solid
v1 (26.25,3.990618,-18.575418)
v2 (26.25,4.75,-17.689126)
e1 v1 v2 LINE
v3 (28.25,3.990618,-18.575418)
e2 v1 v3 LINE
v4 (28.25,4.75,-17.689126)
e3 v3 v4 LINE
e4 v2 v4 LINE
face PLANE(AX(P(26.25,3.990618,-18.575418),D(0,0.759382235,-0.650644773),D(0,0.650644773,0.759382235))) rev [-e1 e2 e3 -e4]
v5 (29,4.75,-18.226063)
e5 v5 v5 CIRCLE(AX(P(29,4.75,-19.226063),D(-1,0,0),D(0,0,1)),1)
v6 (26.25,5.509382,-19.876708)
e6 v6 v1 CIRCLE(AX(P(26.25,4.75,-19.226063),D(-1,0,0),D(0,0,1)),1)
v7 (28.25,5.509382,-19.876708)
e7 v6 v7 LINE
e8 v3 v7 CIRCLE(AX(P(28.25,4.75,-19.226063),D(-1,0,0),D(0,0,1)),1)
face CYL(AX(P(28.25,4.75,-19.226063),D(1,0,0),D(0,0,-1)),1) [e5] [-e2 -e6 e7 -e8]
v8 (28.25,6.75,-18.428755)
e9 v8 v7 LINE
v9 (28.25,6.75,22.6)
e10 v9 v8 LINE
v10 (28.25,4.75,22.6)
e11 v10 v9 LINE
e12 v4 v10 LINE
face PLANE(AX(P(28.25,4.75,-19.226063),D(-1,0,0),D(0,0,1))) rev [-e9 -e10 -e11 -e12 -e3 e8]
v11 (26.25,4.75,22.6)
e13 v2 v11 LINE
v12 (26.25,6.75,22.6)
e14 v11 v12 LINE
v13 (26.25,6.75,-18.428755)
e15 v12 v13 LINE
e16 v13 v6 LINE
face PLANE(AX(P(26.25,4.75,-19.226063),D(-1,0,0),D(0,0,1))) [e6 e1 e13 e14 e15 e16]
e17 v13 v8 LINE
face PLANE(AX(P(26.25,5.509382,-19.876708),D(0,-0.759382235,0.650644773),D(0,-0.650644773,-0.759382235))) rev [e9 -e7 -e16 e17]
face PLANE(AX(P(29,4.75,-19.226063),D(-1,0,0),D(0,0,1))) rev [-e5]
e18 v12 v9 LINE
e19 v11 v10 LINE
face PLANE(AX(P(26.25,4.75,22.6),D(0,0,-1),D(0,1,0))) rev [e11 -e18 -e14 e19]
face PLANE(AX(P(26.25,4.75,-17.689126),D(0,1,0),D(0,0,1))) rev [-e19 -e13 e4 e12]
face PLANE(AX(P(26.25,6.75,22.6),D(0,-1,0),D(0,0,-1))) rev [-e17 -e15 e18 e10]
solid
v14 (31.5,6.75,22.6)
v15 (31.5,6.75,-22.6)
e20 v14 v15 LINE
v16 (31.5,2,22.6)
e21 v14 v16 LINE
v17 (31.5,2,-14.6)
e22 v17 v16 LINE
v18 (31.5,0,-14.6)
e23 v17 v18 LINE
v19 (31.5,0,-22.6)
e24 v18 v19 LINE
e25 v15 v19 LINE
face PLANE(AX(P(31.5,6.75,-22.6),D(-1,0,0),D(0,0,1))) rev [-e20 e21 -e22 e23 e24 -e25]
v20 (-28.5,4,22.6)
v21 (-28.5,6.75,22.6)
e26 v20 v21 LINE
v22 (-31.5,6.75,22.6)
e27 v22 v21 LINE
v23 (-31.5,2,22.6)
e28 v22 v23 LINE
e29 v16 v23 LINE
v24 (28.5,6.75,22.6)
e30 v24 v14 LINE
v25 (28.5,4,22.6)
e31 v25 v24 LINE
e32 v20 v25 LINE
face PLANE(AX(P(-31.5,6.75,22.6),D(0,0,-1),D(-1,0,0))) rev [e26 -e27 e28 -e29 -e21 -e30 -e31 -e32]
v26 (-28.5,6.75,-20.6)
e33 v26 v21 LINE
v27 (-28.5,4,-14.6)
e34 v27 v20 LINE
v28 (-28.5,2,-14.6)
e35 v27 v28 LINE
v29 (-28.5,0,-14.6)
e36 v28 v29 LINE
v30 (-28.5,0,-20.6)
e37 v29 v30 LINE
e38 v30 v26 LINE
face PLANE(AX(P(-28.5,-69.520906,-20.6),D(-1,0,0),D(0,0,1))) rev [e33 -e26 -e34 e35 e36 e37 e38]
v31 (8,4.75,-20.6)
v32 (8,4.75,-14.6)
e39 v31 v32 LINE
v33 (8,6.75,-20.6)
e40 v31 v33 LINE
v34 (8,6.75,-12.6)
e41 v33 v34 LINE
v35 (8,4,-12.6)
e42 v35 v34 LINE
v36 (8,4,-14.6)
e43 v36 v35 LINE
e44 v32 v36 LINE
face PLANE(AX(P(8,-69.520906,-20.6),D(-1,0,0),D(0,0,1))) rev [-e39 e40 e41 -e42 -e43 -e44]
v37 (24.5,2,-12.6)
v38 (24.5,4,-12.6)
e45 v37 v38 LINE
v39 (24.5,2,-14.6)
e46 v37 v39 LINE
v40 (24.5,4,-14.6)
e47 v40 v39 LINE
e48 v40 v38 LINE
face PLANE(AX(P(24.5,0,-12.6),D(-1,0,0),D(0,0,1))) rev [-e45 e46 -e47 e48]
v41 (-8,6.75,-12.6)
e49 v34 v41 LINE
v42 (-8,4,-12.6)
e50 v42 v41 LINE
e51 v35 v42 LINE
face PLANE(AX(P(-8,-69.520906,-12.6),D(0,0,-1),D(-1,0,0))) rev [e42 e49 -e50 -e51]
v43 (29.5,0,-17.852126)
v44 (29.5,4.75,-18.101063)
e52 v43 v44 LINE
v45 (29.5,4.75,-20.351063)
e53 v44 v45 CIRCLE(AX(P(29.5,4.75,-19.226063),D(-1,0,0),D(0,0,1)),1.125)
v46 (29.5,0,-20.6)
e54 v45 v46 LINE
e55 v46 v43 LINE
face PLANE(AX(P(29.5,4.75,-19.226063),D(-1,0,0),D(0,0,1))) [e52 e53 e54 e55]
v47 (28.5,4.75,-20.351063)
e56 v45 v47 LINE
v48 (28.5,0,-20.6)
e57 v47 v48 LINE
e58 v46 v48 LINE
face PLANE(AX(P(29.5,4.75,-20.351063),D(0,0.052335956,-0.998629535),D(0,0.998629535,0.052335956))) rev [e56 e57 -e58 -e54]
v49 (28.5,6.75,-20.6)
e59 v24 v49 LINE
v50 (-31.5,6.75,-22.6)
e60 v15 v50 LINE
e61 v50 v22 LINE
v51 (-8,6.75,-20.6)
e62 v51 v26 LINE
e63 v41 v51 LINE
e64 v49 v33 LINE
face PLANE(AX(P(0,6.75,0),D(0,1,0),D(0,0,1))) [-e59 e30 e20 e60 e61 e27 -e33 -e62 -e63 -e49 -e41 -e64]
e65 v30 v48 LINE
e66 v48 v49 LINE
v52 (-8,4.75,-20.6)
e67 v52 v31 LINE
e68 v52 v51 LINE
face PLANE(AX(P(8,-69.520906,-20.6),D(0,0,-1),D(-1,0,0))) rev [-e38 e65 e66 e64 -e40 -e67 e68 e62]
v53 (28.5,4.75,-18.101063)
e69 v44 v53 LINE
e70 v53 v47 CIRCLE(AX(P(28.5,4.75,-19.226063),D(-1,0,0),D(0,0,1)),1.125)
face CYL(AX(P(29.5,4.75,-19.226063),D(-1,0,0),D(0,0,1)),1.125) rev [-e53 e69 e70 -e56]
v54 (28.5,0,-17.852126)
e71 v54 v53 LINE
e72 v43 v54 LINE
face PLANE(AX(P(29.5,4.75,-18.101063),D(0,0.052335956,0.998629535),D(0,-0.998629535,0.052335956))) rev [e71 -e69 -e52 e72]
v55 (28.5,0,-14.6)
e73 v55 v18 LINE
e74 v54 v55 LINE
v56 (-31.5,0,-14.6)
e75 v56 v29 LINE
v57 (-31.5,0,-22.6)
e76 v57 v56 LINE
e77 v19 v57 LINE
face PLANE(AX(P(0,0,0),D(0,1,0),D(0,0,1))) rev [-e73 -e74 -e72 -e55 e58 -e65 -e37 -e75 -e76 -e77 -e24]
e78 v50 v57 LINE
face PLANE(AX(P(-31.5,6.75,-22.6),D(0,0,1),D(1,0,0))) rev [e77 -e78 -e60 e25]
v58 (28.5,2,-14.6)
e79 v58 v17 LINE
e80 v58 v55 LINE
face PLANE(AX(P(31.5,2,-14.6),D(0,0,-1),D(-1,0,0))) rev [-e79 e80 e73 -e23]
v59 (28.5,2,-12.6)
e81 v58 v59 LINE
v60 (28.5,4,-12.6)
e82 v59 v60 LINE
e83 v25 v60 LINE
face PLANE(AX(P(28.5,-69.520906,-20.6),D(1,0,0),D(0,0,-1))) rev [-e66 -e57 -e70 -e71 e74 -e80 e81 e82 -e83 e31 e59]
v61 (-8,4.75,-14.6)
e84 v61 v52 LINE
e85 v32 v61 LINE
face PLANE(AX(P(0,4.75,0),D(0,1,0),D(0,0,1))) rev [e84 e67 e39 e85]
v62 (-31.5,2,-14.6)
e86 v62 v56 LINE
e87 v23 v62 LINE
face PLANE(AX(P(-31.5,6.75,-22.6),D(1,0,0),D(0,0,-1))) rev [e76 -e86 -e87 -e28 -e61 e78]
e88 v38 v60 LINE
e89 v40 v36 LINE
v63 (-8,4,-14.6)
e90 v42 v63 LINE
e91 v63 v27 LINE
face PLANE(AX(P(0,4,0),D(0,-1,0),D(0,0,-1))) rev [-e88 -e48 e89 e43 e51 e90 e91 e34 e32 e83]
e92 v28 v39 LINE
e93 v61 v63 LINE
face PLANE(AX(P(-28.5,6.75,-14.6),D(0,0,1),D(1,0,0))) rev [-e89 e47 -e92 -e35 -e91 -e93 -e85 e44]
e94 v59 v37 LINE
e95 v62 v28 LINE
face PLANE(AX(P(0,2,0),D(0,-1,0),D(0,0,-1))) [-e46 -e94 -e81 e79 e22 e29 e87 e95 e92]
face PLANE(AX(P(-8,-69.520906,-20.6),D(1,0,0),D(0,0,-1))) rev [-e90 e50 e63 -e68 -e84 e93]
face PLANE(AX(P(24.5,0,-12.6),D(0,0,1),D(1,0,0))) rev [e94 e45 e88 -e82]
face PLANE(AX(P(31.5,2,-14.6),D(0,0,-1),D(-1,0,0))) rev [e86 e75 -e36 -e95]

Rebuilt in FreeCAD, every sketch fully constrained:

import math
import FreeCAD as App
import Part
import Sketcher
Q = App.Units.Quantity


def add_polygon(sketch, points):
    """Adds a closed chain of lines whose ends are joined by coincident constraints."""
    first, n = sketch.GeometryCount, len(points)
    for a, b in zip(points, points[1:] + points[:1]):
        sketch.addGeometry(Part.LineSegment(App.Vector(*a, 0), App.Vector(*b, 0)), False)
    for i in range(n):
        sketch.addConstraint(Sketcher.Constraint("Coincident", first + i, 2, first + (i + 1) % n, 1))

doc = App.newDocument("Part")
params = doc.addObject("Spreadsheet::Sheet", "Params")
for row, (alias, value) in enumerate([
    ("sketch1_width", "63 mm"),
    ("sketch1_height", "45.2 mm"),
    ("pad1_length", "6.75 mm"),
    ("sketch2_width", "63 mm"),
    ("sketch2_height", "37.2 mm"),
    ("pocket1_length", "2 mm"),
    ("sketch3_width", "57 mm"),
    ("sketch3_width2", "16 mm"),
    ("sketch3_height", "8 mm"),
    ("sketch3_height2", "43.2 mm"),
    ("pocket2_length", "2.75 mm"),
    ("sketch4_height", "6 mm"),
    ("sketch4_width", "20.5 mm"),
    ("sketch5_width", "16 mm"),
    ("sketch5_height", "6 mm"),
    ("pocket4_length", "4.75 mm"),
    ("pocket5_length", "1 mm"),
    ("sketch7_width", "4 mm"),
    ("sketch7_height", "6 mm"),
    ("sketch7_height2", "2 mm"),
    ("sketch7_width2", "20.5 mm"),
    ("sketch8_diameter", "2 mm"),
    ("pad2_length", "0.75 mm"),
    ("sketch9_radius", "1 mm"),
    ("sketch9_width", "2 mm"),
    ("pad3_length", "2 mm"),
], start=1):
    params.set(f"A{row}", alias)
    params.set(f"B{row}", "=" + value)
    params.setAlias(f"B{row}", alias)

body = doc.addObject("PartDesign::Body", "Body")

# Sketch on XZ plane
sketch1 = doc.addObject("Sketcher::SketchObject", "Sketch")
body.addObject(sketch1)
sketch1.AttachmentSupport = (doc.XZ_Plane, [""])
sketch1.MapMode = "FlatFace"
add_polygon(sketch1, [(-32, -23), (-32, 23), (32, 23), (32, -23)])  # lines 0-3
sketch1.addConstraint(Sketcher.Constraint("Vertical", 0))
sketch1.addConstraint(Sketcher.Constraint("Horizontal", 1))
sketch1.addConstraint(Sketcher.Constraint("Vertical", 2))
sketch1.addConstraint(Sketcher.Constraint("Horizontal", 3))
sketch1.addConstraint(Sketcher.Constraint("Symmetric", 0, 2, 2, 2, -1, 1))
sketch1.addConstraint(Sketcher.Constraint("DistanceX", 1, 1, 1, 2, Q("63 mm")))
sketch1.addConstraint(Sketcher.Constraint("DistanceY", 0, 1, 0, 2, Q("45.2 mm")))
sketch1.setExpression("Constraints[9]", "Params.sketch1_width")
sketch1.setExpression("Constraints[10]", "Params.sketch1_height")
pad1 = doc.addObject("PartDesign::Pad", "Pad")
body.addObject(pad1)
pad1.Profile = sketch1
pad1.setExpression("Length", "Params.pad1_length")
pad1.Reversed = True

# Sketch on XZ plane
sketch2 = doc.addObject("Sketcher::SketchObject", "Sketch001")
body.addObject(sketch2)
sketch2.AttachmentSupport = (doc.XZ_Plane, [""])
sketch2.MapMode = "FlatFace"
add_polygon(sketch2, [(-32, 23), (-32, -15), (32, -15), (32, 23)])  # lines 0-3
sketch2.addConstraint(Sketcher.Constraint("Vertical", 0))
sketch2.addConstraint(Sketcher.Constraint("Horizontal", 1))
sketch2.addConstraint(Sketcher.Constraint("Vertical", 2))
sketch2.addConstraint(Sketcher.Constraint("Horizontal", 3))
sketch2.addConstraint(Sketcher.Constraint("DistanceX", 1, 1, 1, 2, Q("63 mm")))
sketch2.addConstraint(Sketcher.Constraint("DistanceY", 0, 2, 0, 1, Q("37.2 mm")))
sketch2.addConstraint(Sketcher.Constraint("DistanceX", 0, 2, -1, 1, Q("31.5 mm")))
sketch2.addConstraint(Sketcher.Constraint("DistanceY", 0, 2, -1, 1, Q("14.6 mm")))
sketch2.setExpression("Constraints[8]", "Params.sketch2_width")
sketch2.setExpression("Constraints[9]", "Params.sketch2_height")
pocket1 = doc.addObject("PartDesign::Pocket", "Pocket")
body.addObject(pocket1)
pocket1.Profile = sketch2
pocket1.setExpression("Length", "Params.pocket1_length")

# Sketch on XZ plane
sketch3 = doc.addObject("Sketcher::SketchObject", "Sketch002")
body.addObject(sketch3)
sketch3.AttachmentSupport = (doc.XZ_Plane, [""])
sketch3.MapMode = "FlatFace"
sketch3.AttachmentOffset = App.Placement(App.Vector(0, 0, -6.75), App.Rotation())
add_polygon(sketch3, [(-8, -21), (-28, -21), (-28, 23), (28, 23), (28, -21), (8, -21), (8, -13), (-8, -13)])  # lines 0-7
sketch3.addConstraint(Sketcher.Constraint("Horizontal", 0))
sketch3.addConstraint(Sketcher.Constraint("Vertical", 1))
sketch3.addConstraint(Sketcher.Constraint("Horizontal", 2))
sketch3.addConstraint(Sketcher.Constraint("Vertical", 3))
sketch3.addConstraint(Sketcher.Constraint("Horizontal", 4))
sketch3.addConstraint(Sketcher.Constraint("Vertical", 5))
sketch3.addConstraint(Sketcher.Constraint("Horizontal", 6))
sketch3.addConstraint(Sketcher.Constraint("Vertical", 7))
sketch3.addConstraint(Sketcher.Constraint("Symmetric", 0, 2, 3, 2, -2))
sketch3.addConstraint(Sketcher.Constraint("Equal", 0, 4))
sketch3.addConstraint(Sketcher.Constraint("DistanceX", 2, 1, 2, 2, Q("57 mm")))
sketch3.addConstraint(Sketcher.Constraint("DistanceX", 6, 2, 6, 1, Q("16 mm")))
sketch3.addConstraint(Sketcher.Constraint("DistanceY", 5, 1, 5, 2, Q("8 mm")))
sketch3.addConstraint(Sketcher.Constraint("DistanceY", 1, 1, 1, 2, Q("43.2 mm")))
sketch3.addConstraint(Sketcher.Constraint("DistanceY", 0, 2, -1, 1, Q("20.6 mm")))
sketch3.setExpression("Constraints[18]", "Params.sketch3_width")
sketch3.setExpression("Constraints[19]", "Params.sketch3_width2")
sketch3.setExpression("Constraints[20]", "Params.sketch3_height")
sketch3.setExpression("Constraints[21]", "Params.sketch3_height2")
pocket2 = doc.addObject("PartDesign::Pocket", "Pocket001")
body.addObject(pocket2)
pocket2.Profile = sketch3
pocket2.setExpression("Length", "Params.pocket2_length")
pocket2.Reversed = True

# Sketch on XZ plane
sketch4 = doc.addObject("Sketcher::SketchObject", "Sketch003")
body.addObject(sketch4)
sketch4.AttachmentSupport = (doc.XZ_Plane, [""])
sketch4.MapMode = "FlatFace"
add_polygon(sketch4, [(-28, -15), (-28, -21), (-8, -21), (-8, -15)])  # lines 0-3
add_polygon(sketch4, [(8, -15), (8, -21), (28, -21), (28, -15)])  # lines 4-7
sketch4.addConstraint(Sketcher.Constraint("Vertical", 0))
sketch4.addConstraint(Sketcher.Constraint("Horizontal", 1))
sketch4.addConstraint(Sketcher.Constraint("Vertical", 2))
sketch4.addConstraint(Sketcher.Constraint("Horizontal", 3))
sketch4.addConstraint(Sketcher.Constraint("Vertical", 4))
sketch4.addConstraint(Sketcher.Constraint("Horizontal", 5))
sketch4.addConstraint(Sketcher.Constraint("Vertical", 6))
sketch4.addConstraint(Sketcher.Constraint("Horizontal", 7))
sketch4.addConstraint(Sketcher.Constraint("Symmetric", 1, 2, 4, 2, -2))
sketch4.addConstraint(Sketcher.Constraint("Symmetric", 3, 2, 6, 2, -2))
sketch4.addConstraint(Sketcher.Constraint("DistanceY", 0, 2, 0, 1, Q("6 mm")))
sketch4.addConstraint(Sketcher.Constraint("DistanceX", 1, 1, 1, 2, Q("20.5 mm")))
sketch4.addConstraint(Sketcher.Constraint("DistanceX", 1, 2, -1, 1, Q("8 mm")))
sketch4.addConstraint(Sketcher.Constraint("DistanceY", 0, 2, -1, 1, Q("20.6 mm")))
sketch4.setExpression("Constraints[18]", "Params.sketch4_height")
sketch4.setExpression("Constraints[19]", "Params.sketch4_width")
pocket3 = doc.addObject("PartDesign::Pocket", "Pocket002")
body.addObject(pocket3)
pocket3.Profile = sketch4
pocket3.Type = "ThroughAll"

# Sketch on XZ plane
sketch5 = doc.addObject("Sketcher::SketchObject", "Sketch004")
body.addObject(sketch5)
sketch5.AttachmentSupport = (doc.XZ_Plane, [""])
sketch5.MapMode = "FlatFace"
add_polygon(sketch5, [(-8, -15), (-8, -21), (8, -21), (8, -15)])  # lines 0-3
sketch5.addConstraint(Sketcher.Constraint("Vertical", 0))
sketch5.addConstraint(Sketcher.Constraint("Horizontal", 1))
sketch5.addConstraint(Sketcher.Constraint("Vertical", 2))
sketch5.addConstraint(Sketcher.Constraint("Horizontal", 3))
sketch5.addConstraint(Sketcher.Constraint("DistanceX", 1, 1, 1, 2, Q("16 mm")))
sketch5.addConstraint(Sketcher.Constraint("DistanceY", 0, 2, 0, 1, Q("6 mm")))
sketch5.addConstraint(Sketcher.Constraint("DistanceX", 0, 2, -1, 1, Q("8 mm")))
sketch5.addConstraint(Sketcher.Constraint("DistanceY", 0, 2, -1, 1, Q("20.6 mm")))
sketch5.setExpression("Constraints[8]", "Params.sketch5_width")
sketch5.setExpression("Constraints[9]", "Params.sketch5_height")
pocket4 = doc.addObject("PartDesign::Pocket", "Pocket003")
body.addObject(pocket4)
pocket4.Profile = sketch5
pocket4.setExpression("Length", "Params.pocket4_length")

# Sketch on YZ plane
sketch6 = doc.addObject("Sketcher::SketchObject", "Sketch005")
body.addObject(sketch6)
sketch6.AttachmentSupport = (doc.YZ_Plane, [""])
sketch6.MapMode = "FlatFace"
sketch6.AttachmentOffset = App.Placement(App.Vector(0, 0, 28.5), App.Rotation())
sketch6.addGeometry(Part.LineSegment(App.Vector(4.8, -20.4, 0), App.Vector(0, -20.6, 0)), False)
sketch6.addGeometry(Part.LineSegment(App.Vector(0, -20.6, 0), App.Vector(0, -17.9, 0)), False)
sketch6.addGeometry(Part.LineSegment(App.Vector(0, -17.9, 0), App.Vector(4.8, -18.1, 0)), False)
sketch6.addGeometry(Part.ArcOfCircle(Part.Circle(App.Vector(4.8, -19.2, 0), App.Vector(0, 0, 1), 1.1), math.radians(-90), math.radians(90)), False)
sketch6.addConstraint(Sketcher.Constraint("Coincident", 0, 2, 1, 1))
sketch6.addConstraint(Sketcher.Constraint("Coincident", 1, 2, 2, 1))
sketch6.addConstraint(Sketcher.Constraint("Coincident", 2, 2, 3, 2))
sketch6.addConstraint(Sketcher.Constraint("Coincident", 3, 1, 0, 1))
sketch6.addConstraint(Sketcher.Constraint("Vertical", 1))
sketch6.addConstraint(Sketcher.Constraint("PointOnObject", 0, 2, -2))
sketch6.addConstraint(Sketcher.Constraint("Vertical", 3, 3, 2, 2))
sketch6.addConstraint(Sketcher.Constraint("Vertical", 2, 2, 3, 1))
sketch6.addConstraint(Sketcher.Constraint("Equal", 0, 2))
sketch6.addConstraint(Sketcher.Constraint("Angle", 0, Q("-177 deg")))
sketch6.addConstraint(Sketcher.Constraint("Radius", 3, Q("1.125 mm")))
sketch6.addConstraint(Sketcher.Constraint("DistanceY", 0, 2, -1, 1, Q("20.6 mm")))
sketch6.addConstraint(Sketcher.Constraint("DistanceX", -1, 1, 3, 3, Q("4.75 mm")))
pocket5 = doc.addObject("PartDesign::Pocket", "Pocket004")
body.addObject(pocket5)
pocket5.Profile = sketch6
pocket5.setExpression("Length", "Params.pocket5_length")
pocket5.Reversed = True

# Sketch on XZ plane
sketch7 = doc.addObject("Sketcher::SketchObject", "Sketch006")
body.addObject(sketch7)
sketch7.AttachmentSupport = (doc.XZ_Plane, [""])
sketch7.MapMode = "FlatFace"
sketch7.AttachmentOffset = App.Placement(App.Vector(0, 0, -4), App.Rotation())
add_polygon(sketch7, [(28.5, -20.6), (8, -20.6), (8, -14.6), (24.5, -14.6), (24.5, -12.6), (28.5, -12.6)])  # lines 0-5
sketch7.addConstraint(Sketcher.Constraint("Horizontal", 0))
sketch7.addConstraint(Sketcher.Constraint("Vertical", 1))
sketch7.addConstraint(Sketcher.Constraint("Horizontal", 2))
sketch7.addConstraint(Sketcher.Constraint("Vertical", 3))
sketch7.addConstraint(Sketcher.Constraint("Horizontal", 4))
sketch7.addConstraint(Sketcher.Constraint("Vertical", 5))
sketch7.addConstraint(Sketcher.Constraint("DistanceX", 4, 1, 4, 2, Q("4 mm")))
sketch7.addConstraint(Sketcher.Constraint("DistanceY", 1, 1, 1, 2, Q("6 mm")))
sketch7.addConstraint(Sketcher.Constraint("DistanceY", 3, 1, 3, 2, Q("2 mm")))
sketch7.addConstraint(Sketcher.Constraint("DistanceX", 0, 2, 0, 1, Q("20.5 mm")))
sketch7.addConstraint(Sketcher.Constraint("DistanceX", -1, 1, 0, 2, Q("8 mm")))
sketch7.addConstraint(Sketcher.Constraint("DistanceY", 0, 2, -1, 1, Q("20.6 mm")))
sketch7.setExpression("Constraints[12]", "Params.sketch7_width")
sketch7.setExpression("Constraints[13]", "Params.sketch7_height")
sketch7.setExpression("Constraints[14]", "Params.sketch7_height2")
sketch7.setExpression("Constraints[15]", "Params.sketch7_width2")
pocket6 = doc.addObject("PartDesign::Pocket", "Pocket005")
body.addObject(pocket6)
pocket6.Profile = sketch7
pocket6.Type = "ThroughAll"
pocket6.Reversed = True
body2 = doc.addObject("PartDesign::Body", "Body001")

# Sketch on YZ plane
sketch8 = doc.addObject("Sketcher::SketchObject", "Sketch007")
body2.addObject(sketch8)
sketch8.AttachmentSupport = (doc.getObject("YZ_Plane001"), [""])
sketch8.MapMode = "FlatFace"
sketch8.AttachmentOffset = App.Placement(App.Vector(0, 0, 29), App.Rotation())
sketch8.addGeometry(Part.Circle(App.Vector(4.8, -19.2, 0), App.Vector(0, 0, 1), 1), False)
sketch8.addConstraint(Sketcher.Constraint("Diameter", 0, Q("2 mm")))
sketch8.addConstraint(Sketcher.Constraint("DistanceX", -1, 1, 0, 3, Q("4.75 mm")))
sketch8.addConstraint(Sketcher.Constraint("DistanceY", 0, 3, -1, 1, Q("19.226063 mm")))
sketch8.setExpression("Constraints[0]", "Params.sketch8_diameter")
pad2 = doc.addObject("PartDesign::Pad", "Pad001")
body2.addObject(pad2)
pad2.Profile = sketch8
pad2.setExpression("Length", "Params.pad2_length")
pad2.Reversed = True

# Sketch on YZ plane
sketch9 = doc.addObject("Sketcher::SketchObject", "Sketch008")
body2.addObject(sketch9)
sketch9.AttachmentSupport = (doc.getObject("YZ_Plane001"), [""])
sketch9.MapMode = "FlatFace"
sketch9.AttachmentOffset = App.Placement(App.Vector(0, 0, 28.25), App.Rotation())
sketch9.addGeometry(Part.LineSegment(App.Vector(6.8, -18.4, 0), App.Vector(5.5, -19.9, 0)), False)
sketch9.addGeometry(Part.ArcOfCircle(Part.Circle(App.Vector(4.8, -19.2, 0), App.Vector(0, 0, 1), 1), math.radians(139), math.radians(319)), False)
sketch9.addGeometry(Part.LineSegment(App.Vector(4, -18.6, 0), App.Vector(4.8, -17.7, 0)), False)
sketch9.addGeometry(Part.LineSegment(App.Vector(4.8, -17.7, 0), App.Vector(4.8, 22.6, 0)), False)
sketch9.addGeometry(Part.LineSegment(App.Vector(4.8, 22.6, 0), App.Vector(6.8, 22.6, 0)), False)
sketch9.addGeometry(Part.LineSegment(App.Vector(6.8, 22.6, 0), App.Vector(6.8, -18.4, 0)), False)
sketch9.addConstraint(Sketcher.Constraint("Tangent", 0, 2, 1, 2))
sketch9.addConstraint(Sketcher.Constraint("Tangent", 1, 1, 2, 1))
sketch9.addConstraint(Sketcher.Constraint("Coincident", 2, 2, 3, 1))
sketch9.addConstraint(Sketcher.Constraint("Coincident", 3, 2, 4, 1))
sketch9.addConstraint(Sketcher.Constraint("Coincident", 4, 2, 5, 1))
sketch9.addConstraint(Sketcher.Constraint("Coincident", 5, 2, 0, 1))
sketch9.addConstraint(Sketcher.Constraint("Vertical", 3))
sketch9.addConstraint(Sketcher.Constraint("Horizontal", 4))
sketch9.addConstraint(Sketcher.Constraint("Vertical", 5))
sketch9.addConstraint(Sketcher.Constraint("Parallel", 0, 2))
sketch9.addConstraint(Sketcher.Constraint("Vertical", 1, 3, 2, 2))
sketch9.addConstraint(Sketcher.Constraint("Radius", 1, Q("1 mm")))
sketch9.addConstraint(Sketcher.Constraint("DistanceX", 4, 1, 4, 2, Q("2 mm")))
sketch9.addConstraint(Sketcher.Constraint("DistanceY", -1, 1, 3, 2, Q("22.6 mm")))
sketch9.addConstraint(Sketcher.Constraint("DistanceX", -1, 1, 1, 3, Q("4.75 mm")))
sketch9.addConstraint(Sketcher.Constraint("Distance", 0, Q("1.906751 mm")))
sketch9.addConstraint(Sketcher.Constraint("DistanceY", 3, 1, 3, 2, Q("40.289126 mm")))
sketch9.setExpression("Constraints[11]", "Params.sketch9_radius")
sketch9.setExpression("Constraints[12]", "Params.sketch9_width")
pad3 = doc.addObject("PartDesign::Pad", "Pad002")
body2.addObject(pad3)
pad3.Profile = sketch9
pad3.setExpression("Length", "Params.pad3_length")
pad3.Reversed = True

doc.recompute()
